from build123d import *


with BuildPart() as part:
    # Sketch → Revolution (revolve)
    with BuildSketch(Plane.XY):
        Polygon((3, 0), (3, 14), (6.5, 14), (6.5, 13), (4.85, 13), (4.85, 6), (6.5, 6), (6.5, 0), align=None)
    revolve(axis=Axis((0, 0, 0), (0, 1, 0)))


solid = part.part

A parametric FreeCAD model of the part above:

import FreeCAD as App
import Part
import Sketcher


def add_polygon(sketch, points):
    """Adds a closed chain of lines whose ends are joined by coincident constraints."""
    first, n = sketch.GeometryCount, len(points)
    for a, b in zip(points, points[1:] + points[:1]):
        sketch.addGeometry(Part.LineSegment(App.Vector(*a, 0), App.Vector(*b, 0)), False)
    for i in range(n):
        sketch.addConstraint(Sketcher.Constraint("Coincident", first + i, 2, first + (i + 1) % n, 1))

doc = App.newDocument("Part")
params = doc.addObject("Spreadsheet::Sheet", "Params")
for row, (alias, value) in enumerate([
    ("sketch1_height", "14 mm"),
    ("sketch1_height2", "6 mm"),
    ("sketch1_height3", "7 mm"),
    ("sketch1_width", "3.5 mm"),
    ("sketch1_width2", "1.65 mm"),
    ("revolution_angle", "360 deg"),
], start=1):
    params.set(f"A{row}", alias)
    params.set(f"B{row}", "=" + value)
    params.setAlias(f"B{row}", alias)

body = doc.addObject("PartDesign::Body", "Body")

# Sketch on XY plane
sketch1 = doc.addObject("Sketcher::SketchObject", "Sketch")
body.addObject(sketch1)
sketch1.AttachmentSupport = (doc.XY_Plane, [""])
sketch1.MapMode = "FlatFace"
add_polygon(sketch1, [(3, 14), (3, 0), (6.5, 0), (6.5, 6), (4.8, 6), (4.8, 13), (6.5, 13), (6.5, 14)])  # lines 0-7
sketch1.addConstraint(Sketcher.Constraint("Vertical", 0))
sketch1.addConstraint(Sketcher.Constraint("Horizontal", 1))
sketch1.addConstraint(Sketcher.Constraint("Vertical", 2))
sketch1.addConstraint(Sketcher.Constraint("Horizontal", 3))
sketch1.addConstraint(Sketcher.Constraint("Vertical", 4))
sketch1.addConstraint(Sketcher.Constraint("Horizontal", 5))
sketch1.addConstraint(Sketcher.Constraint("Vertical", 6))
sketch1.addConstraint(Sketcher.Constraint("Horizontal", 7))
sketch1.addConstraint(Sketcher.Constraint("PointOnObject", 0, 2, -1))
sketch1.addConstraint(Sketcher.Constraint("Vertical", 2, 2, 5, 2))
sketch1.addConstraint(Sketcher.Constraint("DistanceY", 0, 2, 0, 1, 14.0))
sketch1.addConstraint(Sketcher.Constraint("DistanceY", 2, 1, 2, 2, 6.0))
sketch1.addConstraint(Sketcher.Constraint("DistanceY", 4, 1, 4, 2, 7.0))
sketch1.addConstraint(Sketcher.Constraint("DistanceX", 1, 1, 1, 2, 3.5))
sketch1.addConstraint(Sketcher.Constraint("DistanceX", -1, 1, 0, 2, 3.0))
sketch1.addConstraint(Sketcher.Constraint("DistanceX", 3, 2, 3, 1, 1.65))
sketch1.setExpression("Constraints[18]", "Params.sketch1_height")
sketch1.setExpression("Constraints[19]", "Params.sketch1_height2")
sketch1.setExpression("Constraints[20]", "Params.sketch1_height3")
sketch1.setExpression("Constraints[21]", "Params.sketch1_width")
sketch1.setExpression("Constraints[23]", "Params.sketch1_width2")
revolution = doc.addObject("PartDesign::Revolution", "Revolution")
body.addObject(revolution)
revolution.Profile = sketch1
revolution.ReferenceAxis = (sketch1, ["V_Axis"])
revolution.setExpression("Angle", "Params.revolution_angle")

doc.recompute()
